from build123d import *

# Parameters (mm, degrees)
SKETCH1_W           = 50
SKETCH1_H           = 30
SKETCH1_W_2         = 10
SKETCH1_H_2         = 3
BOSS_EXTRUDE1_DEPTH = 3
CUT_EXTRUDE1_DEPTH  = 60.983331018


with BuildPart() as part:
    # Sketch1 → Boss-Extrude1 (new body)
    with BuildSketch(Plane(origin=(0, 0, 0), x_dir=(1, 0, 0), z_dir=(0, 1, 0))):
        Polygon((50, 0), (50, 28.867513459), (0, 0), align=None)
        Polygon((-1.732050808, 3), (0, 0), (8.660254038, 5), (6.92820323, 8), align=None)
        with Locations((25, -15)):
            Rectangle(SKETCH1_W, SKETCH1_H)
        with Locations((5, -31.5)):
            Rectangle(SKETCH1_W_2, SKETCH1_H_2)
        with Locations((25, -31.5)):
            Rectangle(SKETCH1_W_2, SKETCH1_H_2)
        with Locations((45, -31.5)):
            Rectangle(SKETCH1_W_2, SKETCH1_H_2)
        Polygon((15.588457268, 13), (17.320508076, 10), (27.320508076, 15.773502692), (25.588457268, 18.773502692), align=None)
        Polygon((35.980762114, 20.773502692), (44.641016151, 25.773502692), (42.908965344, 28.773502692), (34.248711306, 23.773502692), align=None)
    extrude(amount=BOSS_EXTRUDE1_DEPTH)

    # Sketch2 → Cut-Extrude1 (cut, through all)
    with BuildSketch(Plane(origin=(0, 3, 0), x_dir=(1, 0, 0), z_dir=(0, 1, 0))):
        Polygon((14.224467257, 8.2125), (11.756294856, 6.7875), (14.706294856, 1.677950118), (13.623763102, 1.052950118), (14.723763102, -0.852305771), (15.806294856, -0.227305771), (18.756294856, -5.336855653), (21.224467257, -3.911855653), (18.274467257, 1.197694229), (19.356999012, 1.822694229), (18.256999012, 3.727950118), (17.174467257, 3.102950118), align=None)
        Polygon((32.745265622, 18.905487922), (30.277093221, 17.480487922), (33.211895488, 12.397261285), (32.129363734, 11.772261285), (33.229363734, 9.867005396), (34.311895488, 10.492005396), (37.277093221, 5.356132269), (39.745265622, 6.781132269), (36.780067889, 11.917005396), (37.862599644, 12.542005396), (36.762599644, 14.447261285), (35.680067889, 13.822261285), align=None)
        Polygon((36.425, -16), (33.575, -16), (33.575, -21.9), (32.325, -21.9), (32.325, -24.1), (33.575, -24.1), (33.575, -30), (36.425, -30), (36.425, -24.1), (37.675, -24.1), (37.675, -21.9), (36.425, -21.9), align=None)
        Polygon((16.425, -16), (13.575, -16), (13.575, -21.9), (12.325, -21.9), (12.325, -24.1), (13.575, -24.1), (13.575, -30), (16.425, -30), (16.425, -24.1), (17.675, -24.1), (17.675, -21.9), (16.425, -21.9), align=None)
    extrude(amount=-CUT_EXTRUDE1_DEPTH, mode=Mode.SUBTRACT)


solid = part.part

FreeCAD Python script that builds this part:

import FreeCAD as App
import Part
import Sketcher
Q = App.Units.Quantity

doc = App.newDocument("Part")
body = doc.addObject("PartDesign::Body", "Body")

# Sketch on XZ plane
sketch1 = doc.addObject("Sketcher::SketchObject", "Sketch")
body.addObject(sketch1)
sketch1.AttachmentSupport = (doc.XZ_Plane, [""])
sketch1.MapMode = "FlatFace"
sketch1.addGeometry(Part.LineSegment(App.Vector(50, -28.9, 0), App.Vector(44.6, -25.8, 0)), False)
sketch1.addGeometry(Part.LineSegment(App.Vector(44.6, -25.8, 0), App.Vector(42.9, -28.8, 0)), False)
sketch1.addGeometry(Part.LineSegment(App.Vector(42.9, -28.8, 0), App.Vector(34.2, -23.8, 0)), False)
sketch1.addGeometry(Part.LineSegment(App.Vector(34.2, -23.8, 0), App.Vector(36, -20.8, 0)), False)
sketch1.addGeometry(Part.LineSegment(App.Vector(36, -20.8, 0), App.Vector(27.3, -15.8, 0)), False)
sketch1.addGeometry(Part.LineSegment(App.Vector(27.3, -15.8, 0), App.Vector(25.6, -18.8, 0)), False)
sketch1.addGeometry(Part.LineSegment(App.Vector(25.6, -18.8, 0), App.Vector(15.6, -13, 0)), False)
sketch1.addGeometry(Part.LineSegment(App.Vector(15.6, -13, 0), App.Vector(17.3, -10, 0)), False)
sketch1.addGeometry(Part.LineSegment(App.Vector(17.3, -10, 0), App.Vector(8.7, -5, 0)), False)
sketch1.addGeometry(Part.LineSegment(App.Vector(8.7, -5, 0), App.Vector(6.9, -8, 0)), False)
sketch1.addGeometry(Part.LineSegment(App.Vector(6.9, -8, 0), App.Vector(-1.7, -3, 0)), False)
sketch1.addGeometry(Part.LineSegment(App.Vector(-1.7, -3, 0), App.Vector(0, 0, 0)), False)
sketch1.addGeometry(Part.LineSegment(App.Vector(0, 0, 0), App.Vector(0, 33, 0)), False)
sketch1.addGeometry(Part.LineSegment(App.Vector(0, 33, 0), App.Vector(10, 33, 0)), False)
sketch1.addGeometry(Part.LineSegment(App.Vector(10, 33, 0), App.Vector(10, 30, 0)), False)
sketch1.addGeometry(Part.LineSegment(App.Vector(10, 30, 0), App.Vector(20, 30, 0)), False)
sketch1.addGeometry(Part.LineSegment(App.Vector(20, 30, 0), App.Vector(20, 33, 0)), False)
sketch1.addGeometry(Part.LineSegment(App.Vector(20, 33, 0), App.Vector(30, 33, 0)), False)
sketch1.addGeometry(Part.LineSegment(App.Vector(30, 33, 0), App.Vector(30, 30, 0)), False)
sketch1.addGeometry(Part.LineSegment(App.Vector(30, 30, 0), App.Vector(40, 30, 0)), False)
sketch1.addGeometry(Part.LineSegment(App.Vector(40, 30, 0), App.Vector(40, 33, 0)), False)
sketch1.addGeometry(Part.LineSegment(App.Vector(40, 33, 0), App.Vector(50, 33, 0)), False)
sketch1.addGeometry(Part.LineSegment(App.Vector(50, 33, 0), App.Vector(50, -28.9, 0)), False)
sketch1.addConstraint(Sketcher.Constraint("Coincident", 0, 2, 1, 1))
sketch1.addConstraint(Sketcher.Constraint("Coincident", 1, 2, 2, 1))
sketch1.addConstraint(Sketcher.Constraint("Coincident", 2, 2, 3, 1))
sketch1.addConstraint(Sketcher.Constraint("Coincident", 3, 2, 4, 1))
sketch1.addConstraint(Sketcher.Constraint("Coincident", 4, 2, 5, 1))
sketch1.addConstraint(Sketcher.Constraint("Coincident", 5, 2, 6, 1))
sketch1.addConstraint(Sketcher.Constraint("Coincident", 6, 2, 7, 1))
sketch1.addConstraint(Sketcher.Constraint("Coincident", 7, 2, 8, 1))
sketch1.addConstraint(Sketcher.Constraint("Coincident", 8, 2, 9, 1))
sketch1.addConstraint(Sketcher.Constraint("Coincident", 9, 2, 10, 1))
sketch1.addConstraint(Sketcher.Constraint("Coincident", 10, 2, 11, 1))
sketch1.addConstraint(Sketcher.Constraint("Coincident", 11, 2, 12, 1))
sketch1.addConstraint(Sketcher.Constraint("Coincident", 12, 2, 13, 1))
sketch1.addConstraint(Sketcher.Constraint("Coincident", 13, 2, 14, 1))
sketch1.addConstraint(Sketcher.Constraint("Coincident", 14, 2, 15, 1))
sketch1.addConstraint(Sketcher.Constraint("Coincident", 15, 2, 16, 1))
sketch1.addConstraint(Sketcher.Constraint("Coincident", 16, 2, 17, 1))
sketch1.addConstraint(Sketcher.Constraint("Coincident", 17, 2, 18, 1))
sketch1.addConstraint(Sketcher.Constraint("Coincident", 18, 2, 19, 1))
sketch1.addConstraint(Sketcher.Constraint("Coincident", 19, 2, 20, 1))
sketch1.addConstraint(Sketcher.Constraint("Coincident", 20, 2, 21, 1))
sketch1.addConstraint(Sketcher.Constraint("Coincident", 21, 2, 22, 1))
sketch1.addConstraint(Sketcher.Constraint("Coincident", 22, 2, 0, 1))
sketch1.addConstraint(Sketcher.Constraint("Vertical", 12))
sketch1.addConstraint(Sketcher.Constraint("Horizontal", 13))
sketch1.addConstraint(Sketcher.Constraint("Vertical", 14))
sketch1.addConstraint(Sketcher.Constraint("Horizontal", 15))
sketch1.addConstraint(Sketcher.Constraint("Vertical", 16))
sketch1.addConstraint(Sketcher.Constraint("Horizontal", 17))
sketch1.addConstraint(Sketcher.Constraint("Vertical", 18))
sketch1.addConstraint(Sketcher.Constraint("Horizontal", 19))
sketch1.addConstraint(Sketcher.Constraint("Vertical", 20))
sketch1.addConstraint(Sketcher.Constraint("Horizontal", 21))
sketch1.addConstraint(Sketcher.Constraint("Vertical", 22))
sketch1.addConstraint(Sketcher.Constraint("Coincident", 11, 2, -1, 1))
sketch1.addConstraint(Sketcher.Constraint("Perpendicular", 0, 1))
sketch1.addConstraint(Sketcher.Constraint("Perpendicular", 1, 2))
sketch1.addConstraint(Sketcher.Constraint("Perpendicular", 2, 3))
sketch1.addConstraint(Sketcher.Constraint("Perpendicular", 3, 4))
sketch1.addConstraint(Sketcher.Constraint("Perpendicular", 4, 5))
sketch1.addConstraint(Sketcher.Constraint("Perpendicular", 5, 6))
sketch1.addConstraint(Sketcher.Constraint("Perpendicular", 6, 7))
sketch1.addConstraint(Sketcher.Constraint("Perpendicular", 7, 8))
sketch1.addConstraint(Sketcher.Constraint("Perpendicular", 8, 9))
sketch1.addConstraint(Sketcher.Constraint("Perpendicular", 9, 10))
sketch1.addConstraint(Sketcher.Constraint("Perpendicular", 10, 11))
sketch1.addConstraint(Sketcher.Constraint("Horizontal", 13, 2, 16, 2))
sketch1.addConstraint(Sketcher.Constraint("Horizontal", 15, 2, 18, 2))
sketch1.addConstraint(Sketcher.Constraint("Horizontal", 17, 2, 20, 2))
sketch1.addConstraint(Sketcher.Constraint("Equal", 13, 15))
sketch1.addConstraint(Sketcher.Constraint("Equal", 15, 17))
sketch1.addConstraint(Sketcher.Constraint("Equal", 17, 19))
sketch1.addConstraint(Sketcher.Constraint("Equal", 19, 21))
sketch1.addConstraint(Sketcher.Constraint("Equal", 1, 3))
sketch1.addConstraint(Sketcher.Constraint("Equal", 2, 4))
sketch1.addConstraint(Sketcher.Constraint("Equal", 3, 5))
sketch1.addConstraint(Sketcher.Constraint("Equal", 5, 7))
sketch1.addConstraint(Sketcher.Constraint("Equal", 4, 8))
sketch1.addConstraint(Sketcher.Constraint("Equal", 7, 9))
sketch1.addConstraint(Sketcher.Constraint("Equal", 8, 10))
sketch1.addConstraint(Sketcher.Constraint("Equal", 9, 11))
sketch1.addConstraint(Sketcher.Constraint("DistanceX", 13, 1, 13, 2, Q("10 mm")))
sketch1.addConstraint(Sketcher.Constraint("DistanceY", 12, 1, 12, 2, Q("33 mm")))
sketch1.addConstraint(Sketcher.Constraint("DistanceY", 14, 2, 14, 1, Q("3 mm")))
sketch1.addConstraint(Sketcher.Constraint("Angle", 0, Q("150 deg")))
sketch1.addConstraint(Sketcher.Constraint("Distance", 2, Q("10 mm")))
sketch1.addConstraint(Sketcher.Constraint("DistanceY", 6, 2, -1, 1, Q("13 mm")))
sketch1.addConstraint(Sketcher.Constraint("DistanceX", 6, 2, 5, 2, Q("10 mm")))
pad1 = doc.addObject("PartDesign::Pad", "Pad")
body.addObject(pad1)
pad1.Profile = sketch1
pad1.Length = 3
pad1.Reversed = True

# Sketch on XZ plane
sketch2 = doc.addObject("Sketcher::SketchObject", "Sketch001")
body.addObject(sketch2)
sketch2.AttachmentSupport = (doc.XZ_Plane, [""])
sketch2.MapMode = "FlatFace"
sketch2.AttachmentOffset = App.Placement(App.Vector(0, 0, -3), App.Rotation())
sketch2.addGeometry(Part.LineSegment(App.Vector(14.2, -8.2, 0), App.Vector(11.8, -6.8, 0)), False)
sketch2.addGeometry(Part.LineSegment(App.Vector(11.8, -6.8, 0), App.Vector(14.7, -1.7, 0)), False)
sketch2.addGeometry(Part.LineSegment(App.Vector(14.7, -1.7, 0), App.Vector(13.6, -1.1, 0)), False)
sketch2.addGeometry(Part.LineSegment(App.Vector(13.6, -1.1, 0), App.Vector(14.7, 0.9, 0)), False)
sketch2.addGeometry(Part.LineSegment(App.Vector(14.7, 0.9, 0), App.Vector(15.8, 0.2, 0)), False)
sketch2.addGeometry(Part.LineSegment(App.Vector(15.8, 0.2, 0), App.Vector(18.8, 5.3, 0)), False)
sketch2.addGeometry(Part.LineSegment(App.Vector(18.8, 5.3, 0), App.Vector(21.2, 3.9, 0)), False)
sketch2.addGeometry(Part.LineSegment(App.Vector(21.2, 3.9, 0), App.Vector(18.3, -1.2, 0)), False)
sketch2.addGeometry(Part.LineSegment(App.Vector(18.3, -1.2, 0), App.Vector(19.4, -1.8, 0)), False)
sketch2.addGeometry(Part.LineSegment(App.Vector(19.4, -1.8, 0), App.Vector(18.3, -3.7, 0)), False)
sketch2.addGeometry(Part.LineSegment(App.Vector(18.3, -3.7, 0), App.Vector(17.2, -3.1, 0)), False)
sketch2.addGeometry(Part.LineSegment(App.Vector(17.2, -3.1, 0), App.Vector(14.2, -8.2, 0)), False)
sketch2.addGeometry(Part.LineSegment(App.Vector(32.7, -18.9, 0), App.Vector(30.3, -17.5, 0)), False)
sketch2.addGeometry(Part.LineSegment(App.Vector(30.3, -17.5, 0), App.Vector(33.2, -12.4, 0)), False)
sketch2.addGeometry(Part.LineSegment(App.Vector(33.2, -12.4, 0), App.Vector(32.1, -11.8, 0)), False)
sketch2.addGeometry(Part.LineSegment(App.Vector(32.1, -11.8, 0), App.Vector(33.2, -9.9, 0)), False)
sketch2.addGeometry(Part.LineSegment(App.Vector(33.2, -9.9, 0), App.Vector(34.3, -10.5, 0)), False)
sketch2.addGeometry(Part.LineSegment(App.Vector(34.3, -10.5, 0), App.Vector(37.3, -5.4, 0)), False)
sketch2.addGeometry(Part.LineSegment(App.Vector(37.3, -5.4, 0), App.Vector(39.7, -6.8, 0)), False)
sketch2.addGeometry(Part.LineSegment(App.Vector(39.7, -6.8, 0), App.Vector(36.8, -11.9, 0)), False)
sketch2.addGeometry(Part.LineSegment(App.Vector(36.8, -11.9, 0), App.Vector(37.9, -12.5, 0)), False)
sketch2.addGeometry(Part.LineSegment(App.Vector(37.9, -12.5, 0), App.Vector(36.8, -14.4, 0)), False)
sketch2.addGeometry(Part.LineSegment(App.Vector(36.8, -14.4, 0), App.Vector(35.7, -13.8, 0)), False)
sketch2.addGeometry(Part.LineSegment(App.Vector(35.7, -13.8, 0), App.Vector(32.7, -18.9, 0)), False)
sketch2.addGeometry(Part.LineSegment(App.Vector(36.4, 16, 0), App.Vector(33.6, 16, 0)), False)
sketch2.addGeometry(Part.LineSegment(App.Vector(33.6, 16, 0), App.Vector(33.6, 21.9, 0)), False)
sketch2.addGeometry(Part.LineSegment(App.Vector(33.6, 21.9, 0), App.Vector(32.3, 21.9, 0)), False)
sketch2.addGeometry(Part.LineSegment(App.Vector(32.3, 21.9, 0), App.Vector(32.3, 24.1, 0)), False)
sketch2.addGeometry(Part.LineSegment(App.Vector(32.3, 24.1, 0), App.Vector(33.6, 24.1, 0)), False)
sketch2.addGeometry(Part.LineSegment(App.Vector(33.6, 24.1, 0), App.Vector(33.6, 30, 0)), False)
sketch2.addGeometry(Part.LineSegment(App.Vector(33.6, 30, 0), App.Vector(36.4, 30, 0)), False)
sketch2.addGeometry(Part.LineSegment(App.Vector(36.4, 30, 0), App.Vector(36.4, 24.1, 0)), False)
sketch2.addGeometry(Part.LineSegment(App.Vector(36.4, 24.1, 0), App.Vector(37.7, 24.1, 0)), False)
sketch2.addGeometry(Part.LineSegment(App.Vector(37.7, 24.1, 0), App.Vector(37.7, 21.9, 0)), False)
sketch2.addGeometry(Part.LineSegment(App.Vector(37.7, 21.9, 0), App.Vector(36.4, 21.9, 0)), False)
sketch2.addGeometry(Part.LineSegment(App.Vector(36.4, 21.9, 0), App.Vector(36.4, 16, 0)), False)
sketch2.addGeometry(Part.LineSegment(App.Vector(16.4, 16, 0), App.Vector(13.6, 16, 0)), False)
sketch2.addGeometry(Part.LineSegment(App.Vector(13.6, 16, 0), App.Vector(13.6, 21.9, 0)), False)
sketch2.addGeometry(Part.LineSegment(App.Vector(13.6, 21.9, 0), App.Vector(12.3, 21.9, 0)), False)
sketch2.addGeometry(Part.LineSegment(App.Vector(12.3, 21.9, 0), App.Vector(12.3, 24.1, 0)), False)
sketch2.addGeometry(Part.LineSegment(App.Vector(12.3, 24.1, 0), App.Vector(13.6, 24.1, 0)), False)
sketch2.addGeometry(Part.LineSegment(App.Vector(13.6, 24.1, 0), App.Vector(13.6, 30, 0)), False)
sketch2.addGeometry(Part.LineSegment(App.Vector(13.6, 30, 0), App.Vector(16.4, 30, 0)), False)
sketch2.addGeometry(Part.LineSegment(App.Vector(16.4, 30, 0), App.Vector(16.4, 24.1, 0)), False)
sketch2.addGeometry(Part.LineSegment(App.Vector(16.4, 24.1, 0), App.Vector(17.7, 24.1, 0)), False)
sketch2.addGeometry(Part.LineSegment(App.Vector(17.7, 24.1, 0), App.Vector(17.7, 21.9, 0)), False)
sketch2.addGeometry(Part.LineSegment(App.Vector(17.7, 21.9, 0), App.Vector(16.4, 21.9, 0)), False)
sketch2.addGeometry(Part.LineSegment(App.Vector(16.4, 21.9, 0), App.Vector(16.4, 16, 0)), False)
sketch2.addConstraint(Sketcher.Constraint("Coincident", 0, 2, 1, 1))
sketch2.addConstraint(Sketcher.Constraint("Coincident", 1, 2, 2, 1))
sketch2.addConstraint(Sketcher.Constraint("Coincident", 2, 2, 3, 1))
sketch2.addConstraint(Sketcher.Constraint("Coincident", 3, 2, 4, 1))
sketch2.addConstraint(Sketcher.Constraint("Coincident", 4, 2, 5, 1))
sketch2.addConstraint(Sketcher.Constraint("Coincident", 5, 2, 6, 1))
sketch2.addConstraint(Sketcher.Constraint("Coincident", 6, 2, 7, 1))
sketch2.addConstraint(Sketcher.Constraint("Coincident", 7, 2, 8, 1))
sketch2.addConstraint(Sketcher.Constraint("Coincident", 8, 2, 9, 1))
sketch2.addConstraint(Sketcher.Constraint("Coincident", 9, 2, 10, 1))
sketch2.addConstraint(Sketcher.Constraint("Coincident", 10, 2, 11, 1))
sketch2.addConstraint(Sketcher.Constraint("Coincident", 11, 2, 0, 1))
sketch2.addConstraint(Sketcher.Constraint("Coincident", 12, 2, 13, 1))
sketch2.addConstraint(Sketcher.Constraint("Coincident", 13, 2, 14, 1))
sketch2.addConstraint(Sketcher.Constraint("Coincident", 14, 2, 15, 1))
sketch2.addConstraint(Sketcher.Constraint("Coincident", 15, 2, 16, 1))
sketch2.addConstraint(Sketcher.Constraint("Coincident", 16, 2, 17, 1))
sketch2.addConstraint(Sketcher.Constraint("Coincident", 17, 2, 18, 1))
sketch2.addConstraint(Sketcher.Constraint("Coincident", 18, 2, 19, 1))
sketch2.addConstraint(Sketcher.Constraint("Coincident", 19, 2, 20, 1))
sketch2.addConstraint(Sketcher.Constraint("Coincident", 20, 2, 21, 1))
sketch2.addConstraint(Sketcher.Constraint("Coincident", 21, 2, 22, 1))
sketch2.addConstraint(Sketcher.Constraint("Coincident", 22, 2, 23, 1))
sketch2.addConstraint(Sketcher.Constraint("Coincident", 23, 2, 12, 1))
sketch2.addConstraint(Sketcher.Constraint("Coincident", 24, 2, 25, 1))
sketch2.addConstraint(Sketcher.Constraint("Coincident", 25, 2, 26, 1))
sketch2.addConstraint(Sketcher.Constraint("Coincident", 26, 2, 27, 1))
sketch2.addConstraint(Sketcher.Constraint("Coincident", 27, 2, 28, 1))
sketch2.addConstraint(Sketcher.Constraint("Coincident", 28, 2, 29, 1))
sketch2.addConstraint(Sketcher.Constraint("Coincident", 29, 2, 30, 1))
sketch2.addConstraint(Sketcher.Constraint("Coincident", 30, 2, 31, 1))
sketch2.addConstraint(Sketcher.Constraint("Coincident", 31, 2, 32, 1))
sketch2.addConstraint(Sketcher.Constraint("Coincident", 32, 2, 33, 1))
sketch2.addConstraint(Sketcher.Constraint("Coincident", 33, 2, 34, 1))
sketch2.addConstraint(Sketcher.Constraint("Coincident", 34, 2, 35, 1))
sketch2.addConstraint(Sketcher.Constraint("Coincident", 35, 2, 24, 1))
sketch2.addConstraint(Sketcher.Constraint("Coincident", 36, 2, 37, 1))
sketch2.addConstraint(Sketcher.Constraint("Coincident", 37, 2, 38, 1))
sketch2.addConstraint(Sketcher.Constraint("Coincident", 38, 2, 39, 1))
sketch2.addConstraint(Sketcher.Constraint("Coincident", 39, 2, 40, 1))
sketch2.addConstraint(Sketcher.Constraint("Coincident", 40, 2, 41, 1))
sketch2.addConstraint(Sketcher.Constraint("Coincident", 41, 2, 42, 1))
sketch2.addConstraint(Sketcher.Constraint("Coincident", 42, 2, 43, 1))
sketch2.addConstraint(Sketcher.Constraint("Coincident", 43, 2, 44, 1))
sketch2.addConstraint(Sketcher.Constraint("Coincident", 44, 2, 45, 1))
sketch2.addConstraint(Sketcher.Constraint("Coincident", 45, 2, 46, 1))
sketch2.addConstraint(Sketcher.Constraint("Coincident", 46, 2, 47, 1))
sketch2.addConstraint(Sketcher.Constraint("Coincident", 47, 2, 36, 1))
sketch2.addConstraint(Sketcher.Constraint("Horizontal", 24))
sketch2.addConstraint(Sketcher.Constraint("Vertical", 25))
sketch2.addConstraint(Sketcher.Constraint("Horizontal", 26))
sketch2.addConstraint(Sketcher.Constraint("Vertical", 27))
sketch2.addConstraint(Sketcher.Constraint("Horizontal", 28))
sketch2.addConstraint(Sketcher.Constraint("Vertical", 29))
sketch2.addConstraint(Sketcher.Constraint("Horizontal", 30))
sketch2.addConstraint(Sketcher.Constraint("Vertical", 31))
sketch2.addConstraint(Sketcher.Constraint("Horizontal", 32))
sketch2.addConstraint(Sketcher.Constraint("Vertical", 33))
sketch2.addConstraint(Sketcher.Constraint("Horizontal", 34))
sketch2.addConstraint(Sketcher.Constraint("Vertical", 35))
sketch2.addConstraint(Sketcher.Constraint("Horizontal", 36))
sketch2.addConstraint(Sketcher.Constraint("Vertical", 37))
sketch2.addConstraint(Sketcher.Constraint("Horizontal", 38))
sketch2.addConstraint(Sketcher.Constraint("Vertical", 39))
sketch2.addConstraint(Sketcher.Constraint("Horizontal", 40))
sketch2.addConstraint(Sketcher.Constraint("Vertical", 41))
sketch2.addConstraint(Sketcher.Constraint("Horizontal", 42))
sketch2.addConstraint(Sketcher.Constraint("Vertical", 43))
sketch2.addConstraint(Sketcher.Constraint("Horizontal", 44))
sketch2.addConstraint(Sketcher.Constraint("Vertical", 45))
sketch2.addConstraint(Sketcher.Constraint("Horizontal", 46))
sketch2.addConstraint(Sketcher.Constraint("Vertical", 47))
sketch2.addConstraint(Sketcher.Constraint("Perpendicular", 0, 1))
sketch2.addConstraint(Sketcher.Constraint("Perpendicular", 1, 2))
sketch2.addConstraint(Sketcher.Constraint("Perpendicular", 2, 3))
sketch2.addConstraint(Sketcher.Constraint("Perpendicular", 3, 4))
sketch2.addConstraint(Sketcher.Constraint("Perpendicular", 4, 5))
sketch2.addConstraint(Sketcher.Constraint("Perpendicular", 5, 6))
sketch2.addConstraint(Sketcher.Constraint("Perpendicular", 6, 7))
sketch2.addConstraint(Sketcher.Constraint("Perpendicular", 7, 8))
sketch2.addConstraint(Sketcher.Constraint("Perpendicular", 8, 9))
sketch2.addConstraint(Sketcher.Constraint("Perpendicular", 9, 10))
sketch2.addConstraint(Sketcher.Constraint("Perpendicular", 10, 11))
sketch2.addConstraint(Sketcher.Constraint("Perpendicular", 11, 12))
sketch2.addConstraint(Sketcher.Constraint("Perpendicular", 12, 13))
sketch2.addConstraint(Sketcher.Constraint("Perpendicular", 13, 14))
sketch2.addConstraint(Sketcher.Constraint("Perpendicular", 14, 15))
sketch2.addConstraint(Sketcher.Constraint("Perpendicular", 15, 16))
sketch2.addConstraint(Sketcher.Constraint("Perpendicular", 16, 17))
sketch2.addConstraint(Sketcher.Constraint("Perpendicular", 17, 18))
sketch2.addConstraint(Sketcher.Constraint("Perpendicular", 18, 19))
sketch2.addConstraint(Sketcher.Constraint("Perpendicular", 19, 20))
sketch2.addConstraint(Sketcher.Constraint("Perpendicular", 20, 21))
sketch2.addConstraint(Sketcher.Constraint("Perpendicular", 21, 22))
sketch2.addConstraint(Sketcher.Constraint("Perpendicular", 22, 23))
sketch2.addConstraint(Sketcher.Constraint("Horizontal", 28, 2, 31, 2))
sketch2.addConstraint(Sketcher.Constraint("Horizontal", 26, 2, 33, 2))
sketch2.addConstraint(Sketcher.Constraint("Horizontal", 35, 2, 36, 2))
sketch2.addConstraint(Sketcher.Constraint("Horizontal", 34, 2, 37, 2))
sketch2.addConstraint(Sketcher.Constraint("Horizontal", 32, 2, 39, 2))
sketch2.addConstraint(Sketcher.Constraint("Horizontal", 30, 2, 41, 2))
sketch2.addConstraint(Sketcher.Constraint("Horizontal", 40, 2, 43, 2))
sketch2.addConstraint(Sketcher.Constraint("Horizontal", 38, 2, 45, 2))
sketch2.addConstraint(Sketcher.Constraint("Vertical", 25, 2, 28, 2))
sketch2.addConstraint(Sketcher.Constraint("Vertical", 31, 2, 34, 2))
sketch2.addConstraint(Sketcher.Constraint("Vertical", 37, 2, 40, 2))
sketch2.addConstraint(Sketcher.Constraint("Vertical", 43, 2, 46, 2))
sketch2.addConstraint(Sketcher.Constraint("Equal", 28, 32))
sketch2.addConstraint(Sketcher.Constraint("Equal", 30, 36))
sketch2.addConstraint(Sketcher.Constraint("Equal", 34, 38))
sketch2.addConstraint(Sketcher.Constraint("Equal", 40, 44))
sketch2.addConstraint(Sketcher.Constraint("Equal", 25, 29))
sketch2.addConstraint(Sketcher.Constraint("Equal", 2, 4))
sketch2.addConstraint(Sketcher.Constraint("Equal", 1, 5))
sketch2.addConstraint(Sketcher.Constraint("Equal", 0, 6))
sketch2.addConstraint(Sketcher.Constraint("Equal", 5, 7))
sketch2.addConstraint(Sketcher.Constraint("Equal", 4, 8))
sketch2.addConstraint(Sketcher.Constraint("Equal", 3, 9))
sketch2.addConstraint(Sketcher.Constraint("Equal", 6, 12))
sketch2.addConstraint(Sketcher.Constraint("Equal", 10, 14))
sketch2.addConstraint(Sketcher.Constraint("Equal", 9, 15))
sketch2.addConstraint(Sketcher.Constraint("Equal", 14, 16))
sketch2.addConstraint(Sketcher.Constraint("Equal", 12, 18))
sketch2.addConstraint(Sketcher.Constraint("Equal", 17, 19))
sketch2.addConstraint(Sketcher.Constraint("Equal", 16, 20))
sketch2.addConstraint(Sketcher.Constraint("Equal", 15, 21))
sketch2.addConstraint(Sketcher.Constraint("Angle", 0, Q("150 deg")))
sketch2.addConstraint(Sketcher.Constraint("DistanceY", 25, 1, 25, 2, Q("5.9 mm")))
sketch2.addConstraint(Sketcher.Constraint("DistanceY", 27, 1, 27, 2, Q("2.2 mm")))
sketch2.addConstraint(Sketcher.Constraint("DistanceY", -1, 1, 24, 2, Q("16 mm")))
sketch2.addConstraint(Sketcher.Constraint("DistanceX", 0, 2, 5, 2, Q("7 mm")))
sketch2.addConstraint(Sketcher.Constraint("DistanceX", 12, 2, 17, 2, Q("7 mm")))
sketch2.addConstraint(Sketcher.Constraint("DistanceX", 38, 2, 26, 2, Q("20 mm")))
sketch2.addConstraint(Sketcher.Constraint("Distance", 1, Q("5.9 mm")))
sketch2.addConstraint(Sketcher.Constraint("DistanceX", 24, 2, 24, 1, Q("2.85 mm")))
sketch2.addConstraint(Sketcher.Constraint("DistanceX", 26, 2, 26, 1, Q("1.25 mm")))
sketch2.addConstraint(Sketcher.Constraint("Distance", 0, Q("2.85 mm")))
sketch2.addConstraint(Sketcher.Constraint("Distance", 2, Q("1.25 mm")))
sketch2.addConstraint(Sketcher.Constraint("DistanceX", -1, 1, 8, 2, Q("19.356999 mm")))
sketch2.addConstraint(Sketcher.Constraint("DistanceX", -1, 1, 24, 2, Q("33.575 mm")))
sketch2.addConstraint(Sketcher.Constraint("DistanceY", 0, 2, -1, 1, Q("6.7875 mm")))
sketch2.addConstraint(Sketcher.Constraint("DistanceX", -1, 1, 20, 2, Q("37.8626 mm")))
sketch2.addConstraint(Sketcher.Constraint("DistanceX", 15, 2, 18, 2, Q("6.515902 mm")))
sketch2.addConstraint(Sketcher.Constraint("DistanceY", 13, 2, -1, 1, Q("12.397261 mm")))
pocket1 = doc.addObject("PartDesign::Pocket", "Pocket")
body.addObject(pocket1)
pocket1.Profile = sketch2
pocket1.Type = "ThroughAll"
pocket1.Reversed = True

doc.recompute()
